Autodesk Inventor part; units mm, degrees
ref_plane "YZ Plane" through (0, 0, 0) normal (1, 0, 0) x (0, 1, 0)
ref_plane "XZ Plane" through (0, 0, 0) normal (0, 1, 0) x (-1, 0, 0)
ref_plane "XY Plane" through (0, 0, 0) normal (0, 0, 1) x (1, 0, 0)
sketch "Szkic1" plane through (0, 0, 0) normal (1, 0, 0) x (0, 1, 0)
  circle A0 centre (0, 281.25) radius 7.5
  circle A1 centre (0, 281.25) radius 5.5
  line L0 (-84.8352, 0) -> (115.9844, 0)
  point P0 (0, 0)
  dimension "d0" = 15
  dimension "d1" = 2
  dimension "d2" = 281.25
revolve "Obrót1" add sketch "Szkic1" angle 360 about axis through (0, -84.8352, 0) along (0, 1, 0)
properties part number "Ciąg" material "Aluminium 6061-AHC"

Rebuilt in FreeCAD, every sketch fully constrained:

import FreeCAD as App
import Part
import Sketcher

V = App.Vector
Q = App.Units.Quantity

doc = App.newDocument("Part")
body = doc.addObject("PartDesign::Body", "Body")

# Sketch on YZ plane
sketch1 = body.newObject("Sketcher::SketchObject", "Sketch")
sketch1.AttachmentSupport = (doc.getObject("YZ_Plane"), [""])
sketch1.MapMode = "FlatFace"
sketch1.addGeometry(Part.Circle(V(0, 281, 0), V(0, 0, 1), 8), False)
sketch1.addGeometry(Part.Circle(V(0, 281, 0), V(0, 0, 1), 6), False)
sketch1.addConstraint(Sketcher.Constraint("Coincident", 1, 3, 0, 3))
sketch1.addConstraint(Sketcher.Constraint("PointOnObject", 0, 3, -2))
sketch1.addConstraint(Sketcher.Constraint("Diameter", 0, Q("15 mm")))
sketch1.addConstraint(Sketcher.Constraint("Diameter", 1, Q("11 mm")))
sketch1.addConstraint(Sketcher.Constraint("DistanceY", -1, 1, 0, 3, Q("281.25 mm")))
revolution = body.newObject("PartDesign::Revolution", "Revolution")
revolution.Profile = sketch1
revolution.ReferenceAxis = (sketch1, ["H_Axis"])
revolution.Angle = 360

doc.recompute()
